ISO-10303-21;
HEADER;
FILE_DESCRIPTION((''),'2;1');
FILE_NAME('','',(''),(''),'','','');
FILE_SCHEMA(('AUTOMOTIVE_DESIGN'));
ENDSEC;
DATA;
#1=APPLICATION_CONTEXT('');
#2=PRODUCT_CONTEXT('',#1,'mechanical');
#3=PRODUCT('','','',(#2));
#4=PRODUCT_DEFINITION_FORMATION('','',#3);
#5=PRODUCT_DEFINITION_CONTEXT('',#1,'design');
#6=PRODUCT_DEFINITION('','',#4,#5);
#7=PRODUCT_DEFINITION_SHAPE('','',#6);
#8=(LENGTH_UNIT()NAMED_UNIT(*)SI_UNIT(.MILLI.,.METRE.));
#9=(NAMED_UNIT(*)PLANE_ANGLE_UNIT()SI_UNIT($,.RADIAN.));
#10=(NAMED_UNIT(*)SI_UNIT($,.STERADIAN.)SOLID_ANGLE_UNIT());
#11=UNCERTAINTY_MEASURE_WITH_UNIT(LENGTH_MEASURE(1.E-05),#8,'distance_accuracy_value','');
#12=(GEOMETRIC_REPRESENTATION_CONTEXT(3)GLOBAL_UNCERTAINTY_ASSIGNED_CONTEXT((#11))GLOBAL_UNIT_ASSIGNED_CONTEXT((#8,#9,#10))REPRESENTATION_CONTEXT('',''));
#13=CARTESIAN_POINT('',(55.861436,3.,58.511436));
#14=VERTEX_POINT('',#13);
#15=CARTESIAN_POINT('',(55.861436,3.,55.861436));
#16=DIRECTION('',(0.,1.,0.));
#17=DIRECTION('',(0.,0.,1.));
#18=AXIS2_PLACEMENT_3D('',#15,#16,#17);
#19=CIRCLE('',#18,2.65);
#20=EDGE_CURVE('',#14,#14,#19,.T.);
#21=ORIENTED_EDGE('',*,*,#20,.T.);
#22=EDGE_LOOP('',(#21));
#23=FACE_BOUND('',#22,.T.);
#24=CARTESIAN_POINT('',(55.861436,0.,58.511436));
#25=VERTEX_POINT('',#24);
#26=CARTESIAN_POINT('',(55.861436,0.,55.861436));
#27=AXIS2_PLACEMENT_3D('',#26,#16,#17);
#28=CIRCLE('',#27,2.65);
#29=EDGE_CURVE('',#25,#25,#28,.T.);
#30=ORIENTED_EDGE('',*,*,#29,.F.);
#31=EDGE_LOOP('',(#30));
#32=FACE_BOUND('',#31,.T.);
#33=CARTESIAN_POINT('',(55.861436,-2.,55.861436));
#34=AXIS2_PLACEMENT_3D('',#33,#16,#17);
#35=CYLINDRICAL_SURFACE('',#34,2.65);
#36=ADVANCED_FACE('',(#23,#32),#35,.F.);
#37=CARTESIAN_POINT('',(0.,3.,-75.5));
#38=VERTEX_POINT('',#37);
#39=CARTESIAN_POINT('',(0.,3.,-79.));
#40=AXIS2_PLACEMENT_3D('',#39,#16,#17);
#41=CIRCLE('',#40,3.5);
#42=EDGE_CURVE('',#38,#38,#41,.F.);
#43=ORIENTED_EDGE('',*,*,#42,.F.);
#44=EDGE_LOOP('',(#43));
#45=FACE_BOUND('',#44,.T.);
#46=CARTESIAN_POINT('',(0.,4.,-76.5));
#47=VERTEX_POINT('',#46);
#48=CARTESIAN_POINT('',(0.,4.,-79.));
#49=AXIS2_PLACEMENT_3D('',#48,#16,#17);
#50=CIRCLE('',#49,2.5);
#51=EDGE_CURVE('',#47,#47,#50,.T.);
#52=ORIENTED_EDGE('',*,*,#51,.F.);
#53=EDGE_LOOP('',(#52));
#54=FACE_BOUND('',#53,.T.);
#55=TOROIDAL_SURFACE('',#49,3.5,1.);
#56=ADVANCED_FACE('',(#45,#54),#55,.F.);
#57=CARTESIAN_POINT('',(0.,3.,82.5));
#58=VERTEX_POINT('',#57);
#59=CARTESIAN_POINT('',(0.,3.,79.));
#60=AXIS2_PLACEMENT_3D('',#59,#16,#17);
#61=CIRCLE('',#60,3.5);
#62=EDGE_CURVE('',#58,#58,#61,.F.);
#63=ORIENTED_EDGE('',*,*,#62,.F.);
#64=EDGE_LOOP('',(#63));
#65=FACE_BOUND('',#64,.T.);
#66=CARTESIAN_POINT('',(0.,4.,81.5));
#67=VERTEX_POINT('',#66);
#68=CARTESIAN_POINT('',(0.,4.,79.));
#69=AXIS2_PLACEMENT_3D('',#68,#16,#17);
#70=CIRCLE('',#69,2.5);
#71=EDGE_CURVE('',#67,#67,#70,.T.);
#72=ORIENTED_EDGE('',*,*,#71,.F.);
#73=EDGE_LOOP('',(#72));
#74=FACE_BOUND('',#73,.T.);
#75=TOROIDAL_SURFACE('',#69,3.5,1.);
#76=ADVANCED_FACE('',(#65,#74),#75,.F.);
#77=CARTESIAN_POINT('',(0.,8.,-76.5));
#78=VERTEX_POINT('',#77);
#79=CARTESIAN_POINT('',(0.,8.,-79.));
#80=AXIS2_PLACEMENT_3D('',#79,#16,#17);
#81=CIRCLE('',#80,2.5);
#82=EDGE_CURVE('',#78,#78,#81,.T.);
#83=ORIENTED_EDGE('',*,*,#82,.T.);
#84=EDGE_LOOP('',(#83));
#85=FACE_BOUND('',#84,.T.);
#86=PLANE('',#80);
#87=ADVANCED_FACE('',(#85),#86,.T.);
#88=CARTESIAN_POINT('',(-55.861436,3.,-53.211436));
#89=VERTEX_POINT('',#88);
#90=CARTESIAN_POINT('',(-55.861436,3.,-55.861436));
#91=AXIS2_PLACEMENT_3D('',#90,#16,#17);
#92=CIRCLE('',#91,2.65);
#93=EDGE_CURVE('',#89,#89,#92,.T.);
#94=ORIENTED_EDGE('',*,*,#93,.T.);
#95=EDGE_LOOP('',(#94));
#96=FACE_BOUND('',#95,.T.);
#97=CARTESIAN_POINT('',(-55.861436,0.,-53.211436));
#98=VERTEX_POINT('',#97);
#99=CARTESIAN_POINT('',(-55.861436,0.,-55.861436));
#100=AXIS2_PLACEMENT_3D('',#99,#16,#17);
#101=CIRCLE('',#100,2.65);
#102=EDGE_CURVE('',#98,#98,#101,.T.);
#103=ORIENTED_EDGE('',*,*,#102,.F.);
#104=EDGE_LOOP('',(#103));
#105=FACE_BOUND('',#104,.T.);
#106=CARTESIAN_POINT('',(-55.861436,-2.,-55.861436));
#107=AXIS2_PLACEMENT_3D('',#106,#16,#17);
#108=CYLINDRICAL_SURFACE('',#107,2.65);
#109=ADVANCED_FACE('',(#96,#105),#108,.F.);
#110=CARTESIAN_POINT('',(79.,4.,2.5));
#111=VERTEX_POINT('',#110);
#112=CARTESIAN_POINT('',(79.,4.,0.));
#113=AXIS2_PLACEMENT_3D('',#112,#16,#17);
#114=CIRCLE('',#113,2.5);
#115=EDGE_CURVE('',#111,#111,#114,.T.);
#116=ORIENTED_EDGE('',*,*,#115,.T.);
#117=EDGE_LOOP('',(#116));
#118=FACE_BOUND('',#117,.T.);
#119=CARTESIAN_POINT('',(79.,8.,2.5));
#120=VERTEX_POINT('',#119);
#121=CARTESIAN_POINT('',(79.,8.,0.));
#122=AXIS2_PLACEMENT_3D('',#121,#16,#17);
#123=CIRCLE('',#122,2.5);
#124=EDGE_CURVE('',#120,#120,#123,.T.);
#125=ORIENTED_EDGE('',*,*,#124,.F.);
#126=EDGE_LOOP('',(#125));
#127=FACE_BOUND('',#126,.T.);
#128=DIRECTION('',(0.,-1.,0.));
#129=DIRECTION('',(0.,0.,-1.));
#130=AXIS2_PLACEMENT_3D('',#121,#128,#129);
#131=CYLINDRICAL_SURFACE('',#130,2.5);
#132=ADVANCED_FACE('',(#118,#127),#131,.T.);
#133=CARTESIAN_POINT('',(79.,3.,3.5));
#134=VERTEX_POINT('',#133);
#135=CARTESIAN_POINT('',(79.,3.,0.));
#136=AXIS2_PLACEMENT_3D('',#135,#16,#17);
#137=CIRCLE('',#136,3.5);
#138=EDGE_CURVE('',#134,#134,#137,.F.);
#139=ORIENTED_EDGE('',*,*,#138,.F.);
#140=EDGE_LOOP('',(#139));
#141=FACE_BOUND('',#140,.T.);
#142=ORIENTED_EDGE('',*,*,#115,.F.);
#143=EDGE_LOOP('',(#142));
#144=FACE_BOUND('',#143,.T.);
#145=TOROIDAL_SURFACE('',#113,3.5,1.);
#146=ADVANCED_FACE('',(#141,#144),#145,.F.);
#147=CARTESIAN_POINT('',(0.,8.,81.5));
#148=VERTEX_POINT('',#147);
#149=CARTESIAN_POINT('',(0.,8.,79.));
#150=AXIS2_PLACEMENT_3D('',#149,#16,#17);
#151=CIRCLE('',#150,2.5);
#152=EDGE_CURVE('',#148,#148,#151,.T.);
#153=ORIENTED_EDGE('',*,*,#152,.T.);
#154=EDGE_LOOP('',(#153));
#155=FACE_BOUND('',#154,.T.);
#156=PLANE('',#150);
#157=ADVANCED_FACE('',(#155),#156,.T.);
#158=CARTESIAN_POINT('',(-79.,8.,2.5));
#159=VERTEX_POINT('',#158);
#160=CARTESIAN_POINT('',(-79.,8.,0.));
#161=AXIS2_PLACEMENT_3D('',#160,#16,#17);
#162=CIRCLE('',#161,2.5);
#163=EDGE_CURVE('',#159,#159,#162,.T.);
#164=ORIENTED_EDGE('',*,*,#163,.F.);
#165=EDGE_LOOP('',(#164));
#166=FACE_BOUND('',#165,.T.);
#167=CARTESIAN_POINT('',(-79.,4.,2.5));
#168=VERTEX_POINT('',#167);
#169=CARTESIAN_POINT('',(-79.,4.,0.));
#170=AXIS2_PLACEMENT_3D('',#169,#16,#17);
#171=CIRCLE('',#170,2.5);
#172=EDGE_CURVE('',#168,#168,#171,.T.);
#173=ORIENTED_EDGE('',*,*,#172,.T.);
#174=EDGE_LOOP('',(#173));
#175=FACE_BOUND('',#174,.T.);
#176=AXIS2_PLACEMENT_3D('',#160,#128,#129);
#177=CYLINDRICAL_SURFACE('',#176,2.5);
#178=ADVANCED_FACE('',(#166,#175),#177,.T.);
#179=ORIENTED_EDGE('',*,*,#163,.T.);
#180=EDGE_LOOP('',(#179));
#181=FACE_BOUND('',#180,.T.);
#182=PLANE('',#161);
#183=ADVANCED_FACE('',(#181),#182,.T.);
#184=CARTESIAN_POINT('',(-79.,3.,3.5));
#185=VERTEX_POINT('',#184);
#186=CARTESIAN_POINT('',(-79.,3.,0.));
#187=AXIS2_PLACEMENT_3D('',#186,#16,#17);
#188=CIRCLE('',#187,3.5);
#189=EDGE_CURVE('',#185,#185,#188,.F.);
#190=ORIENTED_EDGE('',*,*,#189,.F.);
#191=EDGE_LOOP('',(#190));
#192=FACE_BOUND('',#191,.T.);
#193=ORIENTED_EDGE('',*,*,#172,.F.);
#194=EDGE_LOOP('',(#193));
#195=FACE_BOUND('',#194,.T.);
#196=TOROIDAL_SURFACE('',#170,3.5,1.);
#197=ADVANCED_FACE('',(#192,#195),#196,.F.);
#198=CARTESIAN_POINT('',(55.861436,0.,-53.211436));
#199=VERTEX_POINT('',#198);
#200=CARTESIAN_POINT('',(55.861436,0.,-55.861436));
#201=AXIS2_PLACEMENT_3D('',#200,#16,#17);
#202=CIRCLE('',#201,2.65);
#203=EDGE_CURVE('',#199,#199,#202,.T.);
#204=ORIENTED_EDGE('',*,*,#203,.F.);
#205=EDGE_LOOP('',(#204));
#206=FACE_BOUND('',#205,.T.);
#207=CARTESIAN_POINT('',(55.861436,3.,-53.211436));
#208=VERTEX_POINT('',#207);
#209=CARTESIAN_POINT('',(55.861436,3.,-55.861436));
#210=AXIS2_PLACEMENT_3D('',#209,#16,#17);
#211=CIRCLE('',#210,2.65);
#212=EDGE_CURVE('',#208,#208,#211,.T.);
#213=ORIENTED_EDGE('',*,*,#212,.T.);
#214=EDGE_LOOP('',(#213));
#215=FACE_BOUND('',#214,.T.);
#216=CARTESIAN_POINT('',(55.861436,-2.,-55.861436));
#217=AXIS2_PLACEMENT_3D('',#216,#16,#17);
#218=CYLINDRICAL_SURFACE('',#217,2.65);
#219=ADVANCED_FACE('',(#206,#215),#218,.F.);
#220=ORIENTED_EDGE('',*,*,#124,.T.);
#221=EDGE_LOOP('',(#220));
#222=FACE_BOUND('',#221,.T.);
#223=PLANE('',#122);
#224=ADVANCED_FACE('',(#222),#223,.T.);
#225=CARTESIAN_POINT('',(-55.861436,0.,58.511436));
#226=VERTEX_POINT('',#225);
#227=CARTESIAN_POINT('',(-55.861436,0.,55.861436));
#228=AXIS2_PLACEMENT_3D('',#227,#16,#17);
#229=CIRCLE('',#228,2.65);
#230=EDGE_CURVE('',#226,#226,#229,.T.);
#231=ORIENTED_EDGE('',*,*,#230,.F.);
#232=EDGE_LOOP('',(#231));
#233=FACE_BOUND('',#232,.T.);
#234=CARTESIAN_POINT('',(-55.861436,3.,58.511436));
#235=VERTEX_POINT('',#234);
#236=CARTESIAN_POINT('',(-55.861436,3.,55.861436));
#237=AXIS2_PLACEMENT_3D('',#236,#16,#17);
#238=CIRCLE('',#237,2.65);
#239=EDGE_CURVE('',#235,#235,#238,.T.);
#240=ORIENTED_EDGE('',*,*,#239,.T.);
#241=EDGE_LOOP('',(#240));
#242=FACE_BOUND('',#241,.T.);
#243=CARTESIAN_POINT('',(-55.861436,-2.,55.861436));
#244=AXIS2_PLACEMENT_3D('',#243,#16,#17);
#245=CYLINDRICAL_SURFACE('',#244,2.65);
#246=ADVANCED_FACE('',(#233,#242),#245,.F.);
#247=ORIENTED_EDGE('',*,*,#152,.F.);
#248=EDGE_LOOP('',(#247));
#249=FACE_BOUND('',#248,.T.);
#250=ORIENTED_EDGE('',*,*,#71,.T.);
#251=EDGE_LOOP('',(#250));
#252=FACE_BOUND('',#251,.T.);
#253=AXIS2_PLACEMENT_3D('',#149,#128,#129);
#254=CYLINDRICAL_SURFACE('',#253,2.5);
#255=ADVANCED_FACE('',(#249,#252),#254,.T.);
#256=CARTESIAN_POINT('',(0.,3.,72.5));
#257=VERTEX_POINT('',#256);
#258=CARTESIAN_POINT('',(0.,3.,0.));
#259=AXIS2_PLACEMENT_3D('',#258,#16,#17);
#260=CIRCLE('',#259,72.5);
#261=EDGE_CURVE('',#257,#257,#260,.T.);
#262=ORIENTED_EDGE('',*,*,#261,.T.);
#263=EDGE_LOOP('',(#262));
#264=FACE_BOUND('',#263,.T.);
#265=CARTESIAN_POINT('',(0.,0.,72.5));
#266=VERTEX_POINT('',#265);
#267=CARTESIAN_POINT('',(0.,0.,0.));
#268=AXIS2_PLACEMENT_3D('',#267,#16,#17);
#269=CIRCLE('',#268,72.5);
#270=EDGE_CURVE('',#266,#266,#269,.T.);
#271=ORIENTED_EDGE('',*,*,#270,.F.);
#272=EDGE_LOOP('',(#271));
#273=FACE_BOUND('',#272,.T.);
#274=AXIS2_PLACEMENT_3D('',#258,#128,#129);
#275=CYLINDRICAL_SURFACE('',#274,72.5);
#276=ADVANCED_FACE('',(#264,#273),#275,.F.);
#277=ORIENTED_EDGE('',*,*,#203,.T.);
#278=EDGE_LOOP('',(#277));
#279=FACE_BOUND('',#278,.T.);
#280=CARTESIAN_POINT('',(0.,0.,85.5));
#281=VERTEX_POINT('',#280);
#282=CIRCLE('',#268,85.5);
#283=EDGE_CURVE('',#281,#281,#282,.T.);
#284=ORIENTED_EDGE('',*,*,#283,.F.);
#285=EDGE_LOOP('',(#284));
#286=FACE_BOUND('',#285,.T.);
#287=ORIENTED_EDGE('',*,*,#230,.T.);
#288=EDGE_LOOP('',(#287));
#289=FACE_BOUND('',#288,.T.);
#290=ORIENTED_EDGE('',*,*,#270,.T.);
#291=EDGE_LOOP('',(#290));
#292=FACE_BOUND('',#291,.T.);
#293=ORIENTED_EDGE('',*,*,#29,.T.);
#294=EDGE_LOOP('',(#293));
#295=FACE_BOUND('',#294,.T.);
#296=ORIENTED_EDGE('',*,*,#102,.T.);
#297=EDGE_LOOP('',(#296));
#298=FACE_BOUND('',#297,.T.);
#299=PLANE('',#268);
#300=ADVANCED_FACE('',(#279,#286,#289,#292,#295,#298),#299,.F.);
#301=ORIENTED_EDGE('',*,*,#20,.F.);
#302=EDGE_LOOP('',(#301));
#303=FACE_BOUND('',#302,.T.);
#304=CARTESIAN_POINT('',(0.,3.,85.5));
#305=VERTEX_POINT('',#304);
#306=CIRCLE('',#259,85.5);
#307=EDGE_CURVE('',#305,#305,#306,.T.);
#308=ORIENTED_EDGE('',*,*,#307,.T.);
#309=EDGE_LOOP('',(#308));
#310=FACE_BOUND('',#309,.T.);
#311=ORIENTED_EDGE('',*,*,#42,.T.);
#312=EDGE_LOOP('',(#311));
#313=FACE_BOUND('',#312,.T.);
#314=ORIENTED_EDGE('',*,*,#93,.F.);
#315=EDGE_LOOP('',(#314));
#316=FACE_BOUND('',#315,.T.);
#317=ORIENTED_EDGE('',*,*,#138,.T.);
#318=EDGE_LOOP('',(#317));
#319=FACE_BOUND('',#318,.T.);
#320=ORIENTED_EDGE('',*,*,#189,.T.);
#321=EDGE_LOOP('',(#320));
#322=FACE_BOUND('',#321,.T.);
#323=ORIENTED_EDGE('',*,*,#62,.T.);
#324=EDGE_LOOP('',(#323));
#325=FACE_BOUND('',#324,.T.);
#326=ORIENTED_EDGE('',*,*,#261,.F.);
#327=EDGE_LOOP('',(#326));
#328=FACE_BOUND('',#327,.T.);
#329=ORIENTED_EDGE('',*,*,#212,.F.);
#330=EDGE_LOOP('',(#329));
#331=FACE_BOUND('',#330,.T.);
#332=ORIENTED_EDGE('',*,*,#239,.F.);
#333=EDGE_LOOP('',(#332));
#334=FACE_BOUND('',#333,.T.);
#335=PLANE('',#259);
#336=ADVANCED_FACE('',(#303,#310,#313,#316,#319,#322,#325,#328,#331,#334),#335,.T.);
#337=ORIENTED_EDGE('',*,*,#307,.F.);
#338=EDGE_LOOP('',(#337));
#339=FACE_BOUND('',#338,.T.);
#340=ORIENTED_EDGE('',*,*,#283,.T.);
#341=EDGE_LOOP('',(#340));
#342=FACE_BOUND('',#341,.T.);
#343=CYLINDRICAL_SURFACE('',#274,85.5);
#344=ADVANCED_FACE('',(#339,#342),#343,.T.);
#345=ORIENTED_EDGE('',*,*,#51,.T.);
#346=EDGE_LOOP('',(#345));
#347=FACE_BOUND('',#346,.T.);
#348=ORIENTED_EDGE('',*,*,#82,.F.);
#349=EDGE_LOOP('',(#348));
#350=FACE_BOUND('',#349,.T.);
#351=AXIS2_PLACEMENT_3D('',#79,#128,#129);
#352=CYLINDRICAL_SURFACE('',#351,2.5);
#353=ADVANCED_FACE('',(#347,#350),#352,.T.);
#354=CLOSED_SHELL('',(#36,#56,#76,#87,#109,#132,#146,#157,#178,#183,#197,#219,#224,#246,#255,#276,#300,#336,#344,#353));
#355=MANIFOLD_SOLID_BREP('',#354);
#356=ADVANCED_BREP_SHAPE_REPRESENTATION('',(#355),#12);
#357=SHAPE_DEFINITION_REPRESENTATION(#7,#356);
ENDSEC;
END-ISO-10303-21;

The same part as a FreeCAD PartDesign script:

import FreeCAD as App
import Part
import Sketcher


def edges_at(feature, points):
    """Names of the edges that pass closest to the given points."""
    edges = feature.Shape.Edges
    near = lambda p: min(range(len(edges)), key=lambda i: edges[i].distToShape(Part.Vertex(*p))[0])
    return sorted({f"Edge{near(p) + 1}" for p in points})

doc = App.newDocument("Part")
body = doc.addObject("PartDesign::Body", "Body")

sketch1 = doc.addObject("Sketcher::SketchObject", "Sketch")
body.addObject(sketch1)
sketch1.AttachmentSupport = (doc.XZ_Plane, [""])
sketch1.MapMode = "FlatFace"
sketch1.addGeometry([
    Part.Circle(App.Vector(0, 0, 0), App.Vector(0, 0, 1), 85.5),
    Part.Circle(App.Vector(0, 0, 0), App.Vector(0, 0, 1), 72.5),
], False)
sketch1.addConstraint([
    Sketcher.Constraint("Coincident", 0, 3, -1, 1),
    Sketcher.Constraint("Coincident", 1, 3, -1, 1),
    Sketcher.Constraint("Diameter", 0, 171.0),
    Sketcher.Constraint("Diameter", 1, 145.0),
])
pad1 = doc.addObject("PartDesign::Pad", "Pad")
body.addObject(pad1)
pad1.Profile = sketch1
pad1.Length = 3
pad1.Reversed = True

sketch2 = doc.addObject("Sketcher::SketchObject", "Sketch001")
body.addObject(sketch2)
sketch2.AttachmentSupport = (doc.XZ_Plane, [""])
sketch2.MapMode = "FlatFace"
sketch2.AttachmentOffset = App.Placement(App.Vector(0, 0, -3), App.Rotation())
sketch2.addGeometry([
    Part.Circle(App.Vector(0, -79, 0), App.Vector(0, 0, 1), 2.5),
    Part.Circle(App.Vector(79, 0, 0), App.Vector(0, 0, 1), 2.5),
    Part.Circle(App.Vector(0, 79, 0), App.Vector(0, 0, 1), 2.5),
    Part.Circle(App.Vector(-79, 0, 0), App.Vector(0, 0, 1), 2.5),
], False)
sketch2.addConstraint([
    Sketcher.Constraint("Equal", 0, 1),
    Sketcher.Constraint("Equal", 1, 2),
    Sketcher.Constraint("Equal", 2, 3),
    Sketcher.Constraint("Symmetric", 0, 3, 2, 3, -1, 1),
    Sketcher.Constraint("Symmetric", 1, 3, 3, 3, -1, 1),
    Sketcher.Constraint("PointOnObject", 0, 3, -2),
    Sketcher.Constraint("PointOnObject", 1, 3, -1),
    Sketcher.Constraint("Diameter", 0, 5.0),
    Sketcher.Constraint("DistanceY", 0, 3, -1, 1, 79.0),
    Sketcher.Constraint("DistanceX", -1, 1, 1, 3, 79.0),
])
pad2 = doc.addObject("PartDesign::Pad", "Pad001")
body.addObject(pad2)
pad2.Profile = sketch2
pad2.Length = 5
pad2.Reversed = True
doc.recompute()

fillet = doc.addObject("PartDesign::Fillet", "Fillet")
body.addObject(fillet)
fillet.Base = (pad2, edges_at(pad2, [
    (0, 3, -81.5),
    (-79, 3, -2.5),
    (79, 3, -2.5),
    (0, 3, 76.5),
]))
fillet.Radius = 1

sketch3 = doc.addObject("Sketcher::SketchObject", "Sketch002")
body.addObject(sketch3)
sketch3.AttachmentSupport = (doc.XZ_Plane, [""])
sketch3.MapMode = "FlatFace"
sketch3.AttachmentOffset = App.Placement(App.Vector(0, 0, -3), App.Rotation())
sketch3.addGeometry([
    Part.Circle(App.Vector(55.861436, -55.861436, 0), App.Vector(0, 0, 1), 2.65),
    Part.Circle(App.Vector(55.861436, 55.861436, 0), App.Vector(0, 0, 1), 2.65),
    Part.Circle(App.Vector(-55.861436, 55.861436, 0), App.Vector(0, 0, 1), 2.65),
    Part.Circle(App.Vector(-55.861436, -55.861436, 0), App.Vector(0, 0, 1), 2.65),
], False)
sketch3.addConstraint([
    Sketcher.Constraint("Equal", 0, 1),
    Sketcher.Constraint("Equal", 1, 2),
    Sketcher.Constraint("Equal", 2, 3),
    Sketcher.Constraint("Symmetric", 0, 3, 2, 3, -1, 1),
    Sketcher.Constraint("Symmetric", 1, 3, 3, 3, -1, 1),
    Sketcher.Constraint("Symmetric", 1, 3, 2, 3, -2),
    Sketcher.Constraint("Diameter", 0, 5.3),
    Sketcher.Constraint("DistanceY", 0, 3, 1, 3, 111.722871),
    Sketcher.Constraint("DistanceX", 2, 3, 1, 3, 111.722871),
])
pocket1 = doc.addObject("PartDesign::Pocket", "Pocket")
body.addObject(pocket1)
pocket1.Profile = sketch3
pocket1.Length = 5
pocket1.Reversed = True

doc.recompute()
